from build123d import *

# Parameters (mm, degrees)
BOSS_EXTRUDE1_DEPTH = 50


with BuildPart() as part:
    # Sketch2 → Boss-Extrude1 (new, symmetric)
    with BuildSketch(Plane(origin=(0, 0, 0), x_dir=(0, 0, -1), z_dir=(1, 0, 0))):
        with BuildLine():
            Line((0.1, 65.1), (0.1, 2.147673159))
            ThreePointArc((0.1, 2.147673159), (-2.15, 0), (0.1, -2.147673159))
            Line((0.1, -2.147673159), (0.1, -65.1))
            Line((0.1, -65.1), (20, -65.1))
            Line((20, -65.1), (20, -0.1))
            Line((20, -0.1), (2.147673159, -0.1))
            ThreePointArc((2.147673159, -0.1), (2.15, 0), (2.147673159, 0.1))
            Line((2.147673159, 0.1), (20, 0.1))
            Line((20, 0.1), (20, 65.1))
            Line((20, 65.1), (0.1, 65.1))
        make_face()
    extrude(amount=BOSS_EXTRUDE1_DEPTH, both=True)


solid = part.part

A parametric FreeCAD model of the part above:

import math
import FreeCAD as App
import Part
import Sketcher

doc = App.newDocument("Part")
body = doc.addObject("PartDesign::Body", "Body")

# Sketch on YZ plane
sketch1 = body.newObject("Sketcher::SketchObject", "Sketch")
sketch1.AttachmentSupport = (doc.getObject("YZ_Plane"), [""])
sketch1.MapMode = "FlatFace"
sketch1.addGeometry([
    Part.LineSegment(App.Vector(65.1, -0.1, 0), App.Vector(2.15, -0.1, 0)),  # 0
    Part.ArcOfCircle(Part.Circle(App.Vector(0, 0, 0), App.Vector(0, 0, 1), 2.15), math.radians(-3), math.radians(183)),  # 1
    Part.LineSegment(App.Vector(-2.15, -0.1, 0), App.Vector(-65.1, -0.1, 0)),  # 2
    Part.LineSegment(App.Vector(-65.1, -0.1, 0), App.Vector(-65.1, -20, 0)),  # 3
    Part.LineSegment(App.Vector(-65.1, -20, 0), App.Vector(-0.1, -20, 0)),  # 4
    Part.LineSegment(App.Vector(-0.1, -20, 0), App.Vector(-0.1, -2.15, 0)),  # 5
    Part.ArcOfCircle(Part.Circle(App.Vector(0, 0, 0), App.Vector(0, 0, 1), 2.15), math.radians(-92.67), math.radians(-87.33)),  # 6
    Part.LineSegment(App.Vector(0.1, -2.15, 0), App.Vector(0.1, -20, 0)),  # 7
    Part.LineSegment(App.Vector(0.1, -20, 0), App.Vector(65.1, -20, 0)),  # 8
    Part.LineSegment(App.Vector(65.1, -20, 0), App.Vector(65.1, -0.1, 0)),  # 9
], False)
sketch1.addConstraint([
    Sketcher.Constraint("Coincident", 0, 2, 1, 1),
    Sketcher.Constraint("Coincident", 1, 2, 2, 1),
    Sketcher.Constraint("Coincident", 2, 2, 3, 1),
    Sketcher.Constraint("Coincident", 3, 2, 4, 1),
    Sketcher.Constraint("Coincident", 4, 2, 5, 1),
    Sketcher.Constraint("Coincident", 5, 2, 6, 1),
    Sketcher.Constraint("Coincident", 6, 2, 7, 1),
    Sketcher.Constraint("Coincident", 7, 2, 8, 1),
    Sketcher.Constraint("Coincident", 8, 2, 9, 1),
    Sketcher.Constraint("Coincident", 9, 2, 0, 1),
    Sketcher.Constraint("Horizontal", 0),
    Sketcher.Constraint("Horizontal", 2),
    Sketcher.Constraint("Vertical", 3),
    Sketcher.Constraint("Horizontal", 4),
    Sketcher.Constraint("Vertical", 5),
    Sketcher.Constraint("Vertical", 7),
    Sketcher.Constraint("Horizontal", 8),
    Sketcher.Constraint("Vertical", 9),
    Sketcher.Constraint("Coincident", 1, 3, -1, 1),
    Sketcher.Constraint("Coincident", 6, 3, -1, 1),
    Sketcher.Constraint("Equal", 1, 6),
    Sketcher.Constraint("Symmetric", 4, 2, 7, 2, -2),
    Sketcher.Constraint("Symmetric", 2, 2, 9, 2, -2),
    Sketcher.Constraint("DistanceX", 4, 1, 4, 2, 65.0),
    Sketcher.Constraint("Radius", 1, 2.15),
    Sketcher.Constraint("DistanceY", 3, 2, 3, 1, 19.9),
    Sketcher.Constraint("DistanceY", 3, 2, -1, 1, 20.0),
    Sketcher.Constraint("DistanceX", 2, 2, -1, 1, 65.1),
])
pad1 = body.newObject("PartDesign::Pad", "Pad")
pad1.Profile = sketch1
pad1.Length = 100
pad1.Midplane = True

doc.recompute()
